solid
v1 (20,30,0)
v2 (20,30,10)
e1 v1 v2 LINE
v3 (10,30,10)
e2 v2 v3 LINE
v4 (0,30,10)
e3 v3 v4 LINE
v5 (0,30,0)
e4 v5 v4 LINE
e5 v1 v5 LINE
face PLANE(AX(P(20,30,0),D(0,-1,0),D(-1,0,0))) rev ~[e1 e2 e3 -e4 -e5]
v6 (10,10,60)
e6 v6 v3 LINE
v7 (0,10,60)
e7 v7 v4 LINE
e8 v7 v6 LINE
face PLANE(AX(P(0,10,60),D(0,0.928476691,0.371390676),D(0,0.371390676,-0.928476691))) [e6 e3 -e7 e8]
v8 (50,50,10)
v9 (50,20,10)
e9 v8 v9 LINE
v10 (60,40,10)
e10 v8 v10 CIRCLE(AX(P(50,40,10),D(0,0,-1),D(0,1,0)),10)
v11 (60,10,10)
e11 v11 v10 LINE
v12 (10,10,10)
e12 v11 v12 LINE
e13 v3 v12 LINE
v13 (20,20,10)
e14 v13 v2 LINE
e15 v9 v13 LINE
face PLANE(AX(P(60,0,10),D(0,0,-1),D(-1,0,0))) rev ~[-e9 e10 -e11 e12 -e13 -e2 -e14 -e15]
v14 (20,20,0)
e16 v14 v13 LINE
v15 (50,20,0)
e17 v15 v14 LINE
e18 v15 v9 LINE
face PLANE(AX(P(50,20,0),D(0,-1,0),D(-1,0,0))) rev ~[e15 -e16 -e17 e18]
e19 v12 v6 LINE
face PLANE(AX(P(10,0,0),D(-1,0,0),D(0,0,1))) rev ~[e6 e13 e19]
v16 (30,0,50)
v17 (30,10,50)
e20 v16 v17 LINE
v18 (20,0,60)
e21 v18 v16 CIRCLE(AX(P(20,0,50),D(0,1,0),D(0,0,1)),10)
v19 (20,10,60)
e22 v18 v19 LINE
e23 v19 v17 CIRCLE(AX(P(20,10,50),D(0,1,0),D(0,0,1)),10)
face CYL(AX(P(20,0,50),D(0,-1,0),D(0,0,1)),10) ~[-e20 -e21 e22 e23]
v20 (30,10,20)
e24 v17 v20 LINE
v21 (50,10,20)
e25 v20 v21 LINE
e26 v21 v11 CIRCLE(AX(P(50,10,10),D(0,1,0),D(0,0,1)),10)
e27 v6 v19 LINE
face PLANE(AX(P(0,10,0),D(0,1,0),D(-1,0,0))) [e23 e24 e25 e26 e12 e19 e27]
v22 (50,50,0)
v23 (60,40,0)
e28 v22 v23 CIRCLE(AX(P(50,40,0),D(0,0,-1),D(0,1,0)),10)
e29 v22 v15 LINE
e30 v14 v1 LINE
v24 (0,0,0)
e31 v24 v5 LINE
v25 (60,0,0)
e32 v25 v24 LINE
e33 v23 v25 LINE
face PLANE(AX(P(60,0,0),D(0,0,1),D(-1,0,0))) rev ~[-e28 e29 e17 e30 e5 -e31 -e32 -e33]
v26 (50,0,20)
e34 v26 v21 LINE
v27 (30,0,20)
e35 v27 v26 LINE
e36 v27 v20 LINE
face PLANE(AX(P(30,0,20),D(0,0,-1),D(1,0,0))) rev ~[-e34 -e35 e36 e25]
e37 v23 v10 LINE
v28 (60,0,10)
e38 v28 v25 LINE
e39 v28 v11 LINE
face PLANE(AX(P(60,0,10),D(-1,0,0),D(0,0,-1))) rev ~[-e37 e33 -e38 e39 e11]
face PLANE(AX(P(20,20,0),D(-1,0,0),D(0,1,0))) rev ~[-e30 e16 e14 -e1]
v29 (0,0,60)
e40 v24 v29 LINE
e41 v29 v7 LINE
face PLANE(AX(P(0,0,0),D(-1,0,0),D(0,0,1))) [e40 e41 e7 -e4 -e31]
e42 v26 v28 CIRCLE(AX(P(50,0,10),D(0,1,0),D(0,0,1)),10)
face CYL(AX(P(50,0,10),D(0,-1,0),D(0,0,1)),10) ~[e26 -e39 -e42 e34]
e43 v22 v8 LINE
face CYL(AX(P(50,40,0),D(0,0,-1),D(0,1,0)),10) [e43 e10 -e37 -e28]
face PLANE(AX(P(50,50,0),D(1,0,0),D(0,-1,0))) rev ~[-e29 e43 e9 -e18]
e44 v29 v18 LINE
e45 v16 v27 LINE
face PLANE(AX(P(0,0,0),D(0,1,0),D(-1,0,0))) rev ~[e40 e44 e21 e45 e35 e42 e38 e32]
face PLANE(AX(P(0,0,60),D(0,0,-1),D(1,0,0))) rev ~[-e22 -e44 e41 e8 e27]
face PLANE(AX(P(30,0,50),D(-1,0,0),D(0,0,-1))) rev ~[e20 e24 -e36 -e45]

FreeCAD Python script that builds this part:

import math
import FreeCAD as App
import Part
import Sketcher
Q = App.Units.Quantity

doc = App.newDocument("Part")
params = doc.addObject("Spreadsheet::Sheet", "Params")
for row, (alias, value) in enumerate([
    ("sketch1_radius", "10 mm"),
    ("sketch1_width", "60 mm"),
    ("sketch1_height", "30 mm"),
    ("pad1_length", "10 mm"),
    ("sketch2_radius", "10 mm"),
    ("sketch2_width", "20 mm"),
    ("sketch2_width2", "30 mm"),
    ("pad2_length", "10 mm"),
    ("sketch3_width", "20 mm"),
    ("sketch3_height", "50 mm"),
    ("pad3_length", "10 mm"),
], start=1):
    params.set(f"A{row}", alias)
    params.set(f"B{row}", "=" + value)
    params.setAlias(f"B{row}", alias)

body = doc.addObject("PartDesign::Body", "Body")

# Sketch on XZ plane
sketch1 = body.newObject("Sketcher::SketchObject", "Sketch")
sketch1.AttachmentSupport = (doc.getObject("XZ_Plane"), [""])
sketch1.MapMode = "FlatFace"
sketch1.addGeometry([
    Part.LineSegment(App.Vector(60, 0, 0), App.Vector(0, 0, 0)),  # 0
    Part.LineSegment(App.Vector(0, 0, 0), App.Vector(0, 60, 0)),  # 1
    Part.LineSegment(App.Vector(0, 60, 0), App.Vector(20, 60, 0)),  # 2
    Part.ArcOfCircle(Part.Circle(App.Vector(20, 50, 0), App.Vector(0, 0, 1), 10), math.radians(0), math.radians(90)),  # 3
    Part.LineSegment(App.Vector(30, 50, 0), App.Vector(30, 20, 0)),  # 4
    Part.LineSegment(App.Vector(30, 20, 0), App.Vector(50, 20, 0)),  # 5
    Part.ArcOfCircle(Part.Circle(App.Vector(50, 10, 0), App.Vector(0, 0, 1), 10), math.radians(0), math.radians(90)),  # 6
    Part.LineSegment(App.Vector(60, 10, 0), App.Vector(60, 0, 0)),  # 7
], False)
sketch1.addConstraint([
    Sketcher.Constraint("Coincident", 0, 2, 1, 1),
    Sketcher.Constraint("Coincident", 1, 2, 2, 1),
    Sketcher.Constraint("Tangent", 2, 2, 3, 2),
    Sketcher.Constraint("Tangent", 3, 1, 4, 1),
    Sketcher.Constraint("Coincident", 4, 2, 5, 1),
    Sketcher.Constraint("Tangent", 5, 2, 6, 2),
    Sketcher.Constraint("Tangent", 6, 1, 7, 1),
    Sketcher.Constraint("Coincident", 7, 2, 0, 1),
    Sketcher.Constraint("Horizontal", 0),
    Sketcher.Constraint("Vertical", 1),
    Sketcher.Constraint("Horizontal", 2),
    Sketcher.Constraint("Vertical", 4),
    Sketcher.Constraint("Horizontal", 5),
    Sketcher.Constraint("Vertical", 7),
    Sketcher.Constraint("Coincident", 0, 2, -1, 1),
    Sketcher.Constraint("Equal", 3, 6),
    Sketcher.Constraint("Equal", 2, 5),
    Sketcher.Constraint("Equal", 0, 1),
    Sketcher.Constraint("Radius", 3, Q("10 mm")),
    Sketcher.Constraint("DistanceX", 0, 2, 0, 1, Q("60 mm")),
    Sketcher.Constraint("DistanceY", 4, 2, 4, 1, Q("30 mm")),
])
sketch1.setExpression("Constraints[18]", "Params.sketch1_radius")
sketch1.setExpression("Constraints[19]", "Params.sketch1_width")
sketch1.setExpression("Constraints[20]", "Params.sketch1_height")
pad1 = body.newObject("PartDesign::Pad", "Pad")
pad1.Profile = sketch1
pad1.setExpression("Length", "Params.pad1_length")
pad1.Reversed = True

# Sketch on XY plane
sketch2 = body.newObject("Sketcher::SketchObject", "Sketch001")
sketch2.AttachmentSupport = (doc.getObject("XY_Plane"), [""])
sketch2.MapMode = "FlatFace"
sketch2.addGeometry([
    Part.LineSegment(App.Vector(60, 40, 0), App.Vector(60, 10, 0)),  # 0
    Part.LineSegment(App.Vector(60, 10, 0), App.Vector(0, 10, 0)),  # 1
    Part.LineSegment(App.Vector(0, 10, 0), App.Vector(0, 30, 0)),  # 2
    Part.LineSegment(App.Vector(0, 30, 0), App.Vector(20, 30, 0)),  # 3
    Part.LineSegment(App.Vector(20, 30, 0), App.Vector(20, 20, 0)),  # 4
    Part.LineSegment(App.Vector(20, 20, 0), App.Vector(50, 20, 0)),  # 5
    Part.LineSegment(App.Vector(50, 20, 0), App.Vector(50, 50, 0)),  # 6
    Part.ArcOfCircle(Part.Circle(App.Vector(50, 40, 0), App.Vector(0, 0, 1), 10), math.radians(0), math.radians(90)),  # 7
], False)
sketch2.addConstraint([
    Sketcher.Constraint("Coincident", 0, 2, 1, 1),
    Sketcher.Constraint("Coincident", 1, 2, 2, 1),
    Sketcher.Constraint("Coincident", 2, 2, 3, 1),
    Sketcher.Constraint("Coincident", 3, 2, 4, 1),
    Sketcher.Constraint("Coincident", 4, 2, 5, 1),
    Sketcher.Constraint("Coincident", 5, 2, 6, 1),
    Sketcher.Constraint("Coincident", 6, 2, 7, 2),
    Sketcher.Constraint("Tangent", 7, 1, 0, 1),
    Sketcher.Constraint("Vertical", 0),
    Sketcher.Constraint("Horizontal", 1),
    Sketcher.Constraint("Vertical", 2),
    Sketcher.Constraint("Horizontal", 3),
    Sketcher.Constraint("Vertical", 4),
    Sketcher.Constraint("Horizontal", 5),
    Sketcher.Constraint("Vertical", 6),
    Sketcher.Constraint("PointOnObject", 1, 2, -2),
    Sketcher.Constraint("Vertical", 7, 3, 5, 2),
    Sketcher.Constraint("Equal", 5, 0),
    Sketcher.Constraint("Equal", 3, 2),
    Sketcher.Constraint("Equal", 0, 6),
    Sketcher.Constraint("Radius", 7, Q("10 mm")),
    Sketcher.Constraint("DistanceX", 3, 1, 3, 2, Q("20 mm")),
    Sketcher.Constraint("DistanceX", 5, 1, 5, 2, Q("30 mm")),
    Sketcher.Constraint("DistanceY", -1, 1, 0, 2, Q("10 mm")),
])
sketch2.setExpression("Constraints[20]", "Params.sketch2_radius")
sketch2.setExpression("Constraints[21]", "Params.sketch2_width")
sketch2.setExpression("Constraints[22]", "Params.sketch2_width2")
pad2 = body.newObject("PartDesign::Pad", "Pad001")
pad2.Profile = sketch2
pad2.setExpression("Length", "Params.pad2_length")

# Sketch on YZ plane
sketch3 = body.newObject("Sketcher::SketchObject", "Sketch002")
sketch3.AttachmentSupport = (doc.getObject("YZ_Plane"), [""])
sketch3.MapMode = "FlatFace"
sketch3.addGeometry([
    Part.LineSegment(App.Vector(10, 60, 0), App.Vector(30, 10, 0)),
    Part.LineSegment(App.Vector(30, 10, 0), App.Vector(10, 10, 0)),
    Part.LineSegment(App.Vector(10, 10, 0), App.Vector(10, 60, 0)),
], False)
sketch3.addConstraint([
    Sketcher.Constraint("Coincident", 0, 2, 1, 1),
    Sketcher.Constraint("Coincident", 1, 2, 2, 1),
    Sketcher.Constraint("Coincident", 2, 2, 0, 1),
    Sketcher.Constraint("Horizontal", 1),
    Sketcher.Constraint("Vertical", 2),
    Sketcher.Constraint("DistanceX", 1, 2, 1, 1, Q("20 mm")),
    Sketcher.Constraint("DistanceY", 2, 1, 2, 2, Q("50 mm")),
    Sketcher.Constraint("DistanceX", -1, 1, 0, 2, Q("30 mm")),
    Sketcher.Constraint("DistanceY", -1, 1, 0, 2, Q("10 mm")),
])
sketch3.setExpression("Constraints[5]", "Params.sketch3_width")
sketch3.setExpression("Constraints[6]", "Params.sketch3_height")
pad3 = body.newObject("PartDesign::Pad", "Pad002")
pad3.Profile = sketch3
pad3.setExpression("Length", "Params.pad3_length")

doc.recompute()
